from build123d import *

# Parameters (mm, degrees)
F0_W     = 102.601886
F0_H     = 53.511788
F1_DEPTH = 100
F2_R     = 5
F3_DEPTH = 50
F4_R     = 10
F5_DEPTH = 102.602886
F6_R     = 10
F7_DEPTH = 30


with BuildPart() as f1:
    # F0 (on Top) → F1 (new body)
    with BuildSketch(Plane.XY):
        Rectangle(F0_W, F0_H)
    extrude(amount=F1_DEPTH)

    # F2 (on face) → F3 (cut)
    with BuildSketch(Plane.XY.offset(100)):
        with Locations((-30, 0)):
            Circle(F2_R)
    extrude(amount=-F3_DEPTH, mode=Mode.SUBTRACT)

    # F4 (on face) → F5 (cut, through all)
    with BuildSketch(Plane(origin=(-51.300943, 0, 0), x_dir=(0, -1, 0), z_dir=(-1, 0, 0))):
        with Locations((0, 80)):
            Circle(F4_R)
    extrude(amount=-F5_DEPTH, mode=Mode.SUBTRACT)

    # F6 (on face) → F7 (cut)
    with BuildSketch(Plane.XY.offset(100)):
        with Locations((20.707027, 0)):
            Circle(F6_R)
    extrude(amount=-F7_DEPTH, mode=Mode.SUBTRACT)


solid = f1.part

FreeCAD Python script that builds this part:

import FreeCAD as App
import Part
import Sketcher
from FreeCAD import Vector
Q = App.Units.Quantity


def add_polygon(sketch, points):
    """Adds a closed chain of lines whose ends are joined by coincident constraints."""
    first, n = sketch.GeometryCount, len(points)
    for a, b in zip(points, points[1:] + points[:1]):
        sketch.addGeometry(Part.LineSegment(App.Vector(*a, 0), App.Vector(*b, 0)), False)
    for i in range(n):
        sketch.addConstraint(Sketcher.Constraint("Coincident", first + i, 2, first + (i + 1) % n, 1))

doc = App.newDocument("Part")
body = doc.addObject("PartDesign::Body", "Body")

sketch1 = body.newObject("Sketcher::SketchObject", "Sketch")
sketch1.AttachmentSupport = (doc.getObject("XY_Plane"), [""])
sketch1.MapMode = "FlatFace"
add_polygon(sketch1, [(-51.300943, 26.755894), (-51.300943, -26.755894), (51.300943, -26.755894), (51.300943, 26.755894)])
sketch1.addConstraint([
    Sketcher.Constraint("Vertical", 0),
    Sketcher.Constraint("Horizontal", 1),
    Sketcher.Constraint("Vertical", 2),
    Sketcher.Constraint("Horizontal", 3),
    Sketcher.Constraint("Symmetric", 0, 2, 2, 2, -1, 1),
    Sketcher.Constraint("DistanceY", 0, 2, 0, 1, Q("53.511788 mm")),
    Sketcher.Constraint("DistanceX", 1, 1, 1, 2, Q("102.601886 mm")),
])
pad1 = body.newObject("PartDesign::Pad", "Pad")
pad1.Profile = sketch1
pad1.Length = 100

sketch2 = body.newObject("Sketcher::SketchObject", "Sketch001")
sketch2.AttachmentSupport = (doc.getObject("XY_Plane"), [""])
sketch2.MapMode = "FlatFace"
sketch2.AttachmentOffset = App.Placement(Vector(0, 0, 100), App.Rotation())
sketch2.addGeometry(Part.Circle(Vector(-30, 0, 0), Vector(0, 0, 1), 5), False)
sketch2.addConstraint([
    Sketcher.Constraint("PointOnObject", 0, 3, -1),
    Sketcher.Constraint("Diameter", 0, Q("10 mm")),
    Sketcher.Constraint("DistanceX", 0, 3, -1, 1, Q("30 mm")),
])
pocket1 = body.newObject("PartDesign::Pocket", "Pocket")
pocket1.Profile = sketch2
pocket1.Length = 50

sketch3 = body.newObject("Sketcher::SketchObject", "Sketch002")
sketch3.AttachmentSupport = (doc.getObject("YZ_Plane"), [""])
sketch3.MapMode = "FlatFace"
sketch3.AttachmentOffset = App.Placement(Vector(0, 0, -51.300943), App.Rotation())
sketch3.addGeometry(Part.Circle(Vector(0, 80, 0), Vector(0, 0, 1), 10), False)
sketch3.addConstraint([
    Sketcher.Constraint("PointOnObject", 0, 3, -2),
    Sketcher.Constraint("Diameter", 0, Q("20 mm")),
    Sketcher.Constraint("DistanceY", -1, 1, 0, 3, Q("80 mm")),
])
pocket2 = body.newObject("PartDesign::Pocket", "Pocket001")
pocket2.Profile = sketch3
pocket2.Type = "ThroughAll"
pocket2.Reversed = True

sketch4 = body.newObject("Sketcher::SketchObject", "Sketch003")
sketch4.AttachmentSupport = (doc.getObject("XY_Plane"), [""])
sketch4.MapMode = "FlatFace"
sketch4.AttachmentOffset = App.Placement(Vector(0, 0, 100), App.Rotation())
sketch4.addGeometry(Part.Circle(Vector(20.707027, 0, 0), Vector(0, 0, 1), 10), False)
sketch4.addConstraint([
    Sketcher.Constraint("PointOnObject", 0, 3, -1),
    Sketcher.Constraint("Diameter", 0, Q("20 mm")),
    Sketcher.Constraint("DistanceX", -1, 1, 0, 3, Q("20.707027 mm")),
])
pocket3 = body.newObject("PartDesign::Pocket", "Pocket002")
pocket3.Profile = sketch4
pocket3.Length = 30

doc.recompute()
